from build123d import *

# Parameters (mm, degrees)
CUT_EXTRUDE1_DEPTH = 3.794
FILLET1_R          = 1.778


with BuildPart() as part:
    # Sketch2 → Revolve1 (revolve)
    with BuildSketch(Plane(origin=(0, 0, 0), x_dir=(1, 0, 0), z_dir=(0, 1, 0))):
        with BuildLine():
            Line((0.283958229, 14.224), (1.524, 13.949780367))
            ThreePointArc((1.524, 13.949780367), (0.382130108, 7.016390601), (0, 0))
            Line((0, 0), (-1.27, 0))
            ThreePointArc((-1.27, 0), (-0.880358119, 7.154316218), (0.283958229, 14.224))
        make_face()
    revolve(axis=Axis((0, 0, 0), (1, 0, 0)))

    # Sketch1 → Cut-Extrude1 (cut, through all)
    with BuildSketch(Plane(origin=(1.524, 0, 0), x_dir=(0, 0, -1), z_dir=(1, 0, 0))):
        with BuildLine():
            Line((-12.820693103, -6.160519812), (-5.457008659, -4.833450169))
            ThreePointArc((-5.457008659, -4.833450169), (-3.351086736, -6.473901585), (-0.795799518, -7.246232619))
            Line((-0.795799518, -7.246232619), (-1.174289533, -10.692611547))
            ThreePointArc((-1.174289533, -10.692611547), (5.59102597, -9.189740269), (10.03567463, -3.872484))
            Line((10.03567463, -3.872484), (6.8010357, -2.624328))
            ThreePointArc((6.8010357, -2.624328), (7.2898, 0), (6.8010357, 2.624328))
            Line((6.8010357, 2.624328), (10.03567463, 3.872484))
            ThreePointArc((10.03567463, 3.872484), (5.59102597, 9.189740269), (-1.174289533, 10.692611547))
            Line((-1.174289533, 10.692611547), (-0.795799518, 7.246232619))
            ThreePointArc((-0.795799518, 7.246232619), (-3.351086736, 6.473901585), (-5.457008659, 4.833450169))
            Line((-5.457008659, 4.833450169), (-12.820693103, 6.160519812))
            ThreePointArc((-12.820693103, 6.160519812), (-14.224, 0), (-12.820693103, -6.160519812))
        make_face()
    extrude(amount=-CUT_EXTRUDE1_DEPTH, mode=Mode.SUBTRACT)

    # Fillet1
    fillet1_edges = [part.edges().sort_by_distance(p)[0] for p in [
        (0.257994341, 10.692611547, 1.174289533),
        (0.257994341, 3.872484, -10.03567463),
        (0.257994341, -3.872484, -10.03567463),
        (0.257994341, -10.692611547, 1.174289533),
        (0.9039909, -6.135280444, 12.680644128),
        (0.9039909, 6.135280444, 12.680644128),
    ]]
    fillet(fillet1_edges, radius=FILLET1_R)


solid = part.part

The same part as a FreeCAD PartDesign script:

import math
import FreeCAD as App
import Part
import Sketcher

V = App.Vector
Q = App.Units.Quantity


def edges_at(feature, points):
    """Names of the edges that pass closest to the given points."""
    edges = feature.Shape.Edges
    near = lambda p: min(range(len(edges)), key=lambda i: edges[i].distToShape(Part.Vertex(*p))[0])
    return sorted({f"Edge{near(p) + 1}" for p in points})

doc = App.newDocument("Part")
body = doc.addObject("PartDesign::Body", "Body")

# Sketch on XZ plane
sketch1 = body.newObject("Sketcher::SketchObject", "Sketch")
sketch1.AttachmentSupport = (doc.getObject("XZ_Plane"), [""])
sketch1.MapMode = "FlatFace"
sketch1.addGeometry(Part.LineSegment(V(1.524, -13.94978, 0), V(0.283958, -14.224, 0)), False)
sketch1.addGeometry(Part.ArcOfCircle(Part.Circle(V(64.605954, 0, 0), V(0, 0, 1), 65.875954), math.radians(-180), math.radians(-167.530436)), False)
sketch1.addGeometry(Part.LineSegment(V(-1.27, 0, 0), V(0, 0, 0)), False)
sketch1.addGeometry(Part.ArcOfCircle(Part.Circle(V(64.605954, 0, 0), V(0, 0, 1), 64.605954), math.radians(180), math.radians(192.469564)), False)
sketch1.addConstraint(Sketcher.Constraint("Coincident", 0, 2, 1, 2))
sketch1.addConstraint(Sketcher.Constraint("Coincident", 1, 1, 2, 1))
sketch1.addConstraint(Sketcher.Constraint("Coincident", 2, 2, 3, 1))
sketch1.addConstraint(Sketcher.Constraint("Coincident", 3, 2, 0, 1))
sketch1.addConstraint(Sketcher.Constraint("Horizontal", 2))
sketch1.addConstraint(Sketcher.Constraint("Coincident", 2, 2, -1, 1))
sketch1.addConstraint(Sketcher.Constraint("Coincident", 3, 3, 1, 3))
sketch1.addConstraint(Sketcher.Constraint("PointOnObject", 1, 3, -1))
sketch1.addConstraint(Sketcher.Constraint("DistanceX", 2, 1, 2, 2, Q("0.05 in")))
sketch1.addConstraint(Sketcher.Constraint("DistanceY", 0, 2, -1, 1, Q("0.56 in")))
sketch1.addConstraint(Sketcher.Constraint("DistanceX", -1, 1, 3, 2, Q("0.06 in")))
sketch1.addConstraint(Sketcher.Constraint("Radius", 1, 65.875954))
revolution = body.newObject("PartDesign::Revolution", "Revolution")
revolution.Profile = sketch1
revolution.ReferenceAxis = (sketch1, ["H_Axis"])
revolution.Angle = 360

# Sketch on YZ plane
sketch2 = body.newObject("Sketcher::SketchObject", "Sketch001")
sketch2.AttachmentSupport = (doc.getObject("YZ_Plane"), [""])
sketch2.MapMode = "FlatFace"
sketch2.AttachmentOffset = App.Placement(V(0, 0, 0.06 * 25.4), App.Rotation())
sketch2.addGeometry(Part.LineSegment(V(-6.16052, 12.820693, 0), V(-4.83345, 5.457009, 0)), False)
sketch2.addGeometry(Part.ArcOfCircle(Part.Circle(V(0, 0, 0), V(0, 0, 1), 7.2898), math.radians(131.532357), math.radians(173.732749)), False)
sketch2.addGeometry(Part.LineSegment(V(-7.246233, 0.7958, 0), V(-10.692612, 1.17429, 0)), False)
sketch2.addGeometry(Part.ArcOfCircle(Part.Circle(V(0, 0, 0), V(0, 0, 1), 10.7569), math.radians(173.732749), math.radians(248.899804)), False)
sketch2.addGeometry(Part.LineSegment(V(-3.872484, -10.035675, 0), V(-2.624328, -6.801036, 0)), False)
sketch2.addGeometry(Part.ArcOfCircle(Part.Circle(V(0, 0, 0), V(0, 0, 1), 7.2898), math.radians(-111.100196), math.radians(-68.899804)), False)
sketch2.addGeometry(Part.LineSegment(V(2.624328, -6.801036, 0), V(3.872484, -10.035675, 0)), False)
sketch2.addGeometry(Part.ArcOfCircle(Part.Circle(V(0, 0, 0), V(0, 0, 1), 10.7569), math.radians(-68.899804), math.radians(6.267251)), False)
sketch2.addGeometry(Part.LineSegment(V(10.692612, 1.17429, 0), V(7.246233, 0.7958, 0)), False)
sketch2.addGeometry(Part.ArcOfCircle(Part.Circle(V(0, 0, 0), V(0, 0, 1), 7.2898), math.radians(6.267251), math.radians(48.467643)), False)
sketch2.addGeometry(Part.LineSegment(V(4.83345, 5.457009, 0), V(6.16052, 12.820693, 0)), False)
sketch2.addGeometry(Part.ArcOfCircle(Part.Circle(V(0, 0, 0), V(0, 0, 1), 14.224), math.radians(64.335073), math.radians(115.664927)), False)
sketch2.addConstraint(Sketcher.Constraint("Coincident", 0, 2, 1, 1))
sketch2.addConstraint(Sketcher.Constraint("Coincident", 1, 2, 2, 1))
sketch2.addConstraint(Sketcher.Constraint("Coincident", 2, 2, 3, 1))
sketch2.addConstraint(Sketcher.Constraint("Coincident", 3, 2, 4, 1))
sketch2.addConstraint(Sketcher.Constraint("Coincident", 4, 2, 5, 1))
sketch2.addConstraint(Sketcher.Constraint("Coincident", 5, 2, 6, 1))
sketch2.addConstraint(Sketcher.Constraint("Coincident", 6, 2, 7, 1))
sketch2.addConstraint(Sketcher.Constraint("Coincident", 7, 2, 8, 1))
sketch2.addConstraint(Sketcher.Constraint("Coincident", 8, 2, 9, 1))
sketch2.addConstraint(Sketcher.Constraint("Coincident", 9, 2, 10, 1))
sketch2.addConstraint(Sketcher.Constraint("Coincident", 10, 2, 11, 1))
sketch2.addConstraint(Sketcher.Constraint("Coincident", 11, 2, 0, 1))
sketch2.addConstraint(Sketcher.Constraint("Coincident", 1, 3, -1, 1))
sketch2.addConstraint(Sketcher.Constraint("Coincident", 3, 3, -1, 1))
sketch2.addConstraint(Sketcher.Constraint("Coincident", 5, 3, -1, 1))
sketch2.addConstraint(Sketcher.Constraint("Coincident", 7, 3, -1, 1))
sketch2.addConstraint(Sketcher.Constraint("Coincident", 9, 3, -1, 1))
sketch2.addConstraint(Sketcher.Constraint("Coincident", 11, 3, -1, 1))
sketch2.addConstraint(Sketcher.Constraint("Equal", 1, 5))
sketch2.addConstraint(Sketcher.Constraint("Equal", 3, 7))
sketch2.addConstraint(Sketcher.Constraint("Equal", 5, 9))
sketch2.addConstraint(Sketcher.Constraint("Horizontal", 4, 2, 5, 2))
sketch2.addConstraint(Sketcher.Constraint("Horizontal", 3, 2, 6, 2))
sketch2.addConstraint(Sketcher.Constraint("Horizontal", 2, 2, 7, 2))
sketch2.addConstraint(Sketcher.Constraint("Horizontal", 1, 2, 8, 2))
sketch2.addConstraint(Sketcher.Constraint("Horizontal", 0, 2, 9, 2))
sketch2.addConstraint(Sketcher.Constraint("Horizontal", 10, 2, 11, 2))
sketch2.addConstraint(Sketcher.Constraint("Radius", 11, Q("0.56 in")))
sketch2.addConstraint(Sketcher.Constraint("Radius", 1, Q("0.287 in")))
sketch2.addConstraint(Sketcher.Constraint("Radius", 3, Q("0.4235 in")))
sketch2.addConstraint(Sketcher.Constraint("DistanceY", -1, 1, 1, 2, 0.7958))
sketch2.addConstraint(Sketcher.Constraint("Distance", 0, 7.48231))
sketch2.addConstraint(Sketcher.Constraint("DistanceX", 0, 2, -1, 1, 4.83345))
sketch2.addConstraint(Sketcher.Constraint("DistanceX", 2, 2, -1, 1, 10.692612))
sketch2.addConstraint(Sketcher.Constraint("DistanceX", 4, 2, -1, 1, 2.624328))
sketch2.addConstraint(Sketcher.Constraint("DistanceY", 3, 2, 4, 2, 3.234639))
pocket1 = body.newObject("PartDesign::Pocket", "Pocket")
pocket1.Profile = sketch2
pocket1.Type = "ThroughAll"
doc.recompute()

fillet = body.newObject("PartDesign::Fillet", "Fillet")
fillet.Base = (pocket1, edges_at(pocket1, [
    (0.258, 10.693, 1.174),
    (0.258, 3.872, -10.036),
    (0.258, -3.872, -10.036),
    (0.258, -10.693, 1.174),
    (0.904, -6.135, 12.681),
    (0.904, 6.135, 12.681),
]))
fillet.Radius = Q("0.07 in")

doc.recompute()
